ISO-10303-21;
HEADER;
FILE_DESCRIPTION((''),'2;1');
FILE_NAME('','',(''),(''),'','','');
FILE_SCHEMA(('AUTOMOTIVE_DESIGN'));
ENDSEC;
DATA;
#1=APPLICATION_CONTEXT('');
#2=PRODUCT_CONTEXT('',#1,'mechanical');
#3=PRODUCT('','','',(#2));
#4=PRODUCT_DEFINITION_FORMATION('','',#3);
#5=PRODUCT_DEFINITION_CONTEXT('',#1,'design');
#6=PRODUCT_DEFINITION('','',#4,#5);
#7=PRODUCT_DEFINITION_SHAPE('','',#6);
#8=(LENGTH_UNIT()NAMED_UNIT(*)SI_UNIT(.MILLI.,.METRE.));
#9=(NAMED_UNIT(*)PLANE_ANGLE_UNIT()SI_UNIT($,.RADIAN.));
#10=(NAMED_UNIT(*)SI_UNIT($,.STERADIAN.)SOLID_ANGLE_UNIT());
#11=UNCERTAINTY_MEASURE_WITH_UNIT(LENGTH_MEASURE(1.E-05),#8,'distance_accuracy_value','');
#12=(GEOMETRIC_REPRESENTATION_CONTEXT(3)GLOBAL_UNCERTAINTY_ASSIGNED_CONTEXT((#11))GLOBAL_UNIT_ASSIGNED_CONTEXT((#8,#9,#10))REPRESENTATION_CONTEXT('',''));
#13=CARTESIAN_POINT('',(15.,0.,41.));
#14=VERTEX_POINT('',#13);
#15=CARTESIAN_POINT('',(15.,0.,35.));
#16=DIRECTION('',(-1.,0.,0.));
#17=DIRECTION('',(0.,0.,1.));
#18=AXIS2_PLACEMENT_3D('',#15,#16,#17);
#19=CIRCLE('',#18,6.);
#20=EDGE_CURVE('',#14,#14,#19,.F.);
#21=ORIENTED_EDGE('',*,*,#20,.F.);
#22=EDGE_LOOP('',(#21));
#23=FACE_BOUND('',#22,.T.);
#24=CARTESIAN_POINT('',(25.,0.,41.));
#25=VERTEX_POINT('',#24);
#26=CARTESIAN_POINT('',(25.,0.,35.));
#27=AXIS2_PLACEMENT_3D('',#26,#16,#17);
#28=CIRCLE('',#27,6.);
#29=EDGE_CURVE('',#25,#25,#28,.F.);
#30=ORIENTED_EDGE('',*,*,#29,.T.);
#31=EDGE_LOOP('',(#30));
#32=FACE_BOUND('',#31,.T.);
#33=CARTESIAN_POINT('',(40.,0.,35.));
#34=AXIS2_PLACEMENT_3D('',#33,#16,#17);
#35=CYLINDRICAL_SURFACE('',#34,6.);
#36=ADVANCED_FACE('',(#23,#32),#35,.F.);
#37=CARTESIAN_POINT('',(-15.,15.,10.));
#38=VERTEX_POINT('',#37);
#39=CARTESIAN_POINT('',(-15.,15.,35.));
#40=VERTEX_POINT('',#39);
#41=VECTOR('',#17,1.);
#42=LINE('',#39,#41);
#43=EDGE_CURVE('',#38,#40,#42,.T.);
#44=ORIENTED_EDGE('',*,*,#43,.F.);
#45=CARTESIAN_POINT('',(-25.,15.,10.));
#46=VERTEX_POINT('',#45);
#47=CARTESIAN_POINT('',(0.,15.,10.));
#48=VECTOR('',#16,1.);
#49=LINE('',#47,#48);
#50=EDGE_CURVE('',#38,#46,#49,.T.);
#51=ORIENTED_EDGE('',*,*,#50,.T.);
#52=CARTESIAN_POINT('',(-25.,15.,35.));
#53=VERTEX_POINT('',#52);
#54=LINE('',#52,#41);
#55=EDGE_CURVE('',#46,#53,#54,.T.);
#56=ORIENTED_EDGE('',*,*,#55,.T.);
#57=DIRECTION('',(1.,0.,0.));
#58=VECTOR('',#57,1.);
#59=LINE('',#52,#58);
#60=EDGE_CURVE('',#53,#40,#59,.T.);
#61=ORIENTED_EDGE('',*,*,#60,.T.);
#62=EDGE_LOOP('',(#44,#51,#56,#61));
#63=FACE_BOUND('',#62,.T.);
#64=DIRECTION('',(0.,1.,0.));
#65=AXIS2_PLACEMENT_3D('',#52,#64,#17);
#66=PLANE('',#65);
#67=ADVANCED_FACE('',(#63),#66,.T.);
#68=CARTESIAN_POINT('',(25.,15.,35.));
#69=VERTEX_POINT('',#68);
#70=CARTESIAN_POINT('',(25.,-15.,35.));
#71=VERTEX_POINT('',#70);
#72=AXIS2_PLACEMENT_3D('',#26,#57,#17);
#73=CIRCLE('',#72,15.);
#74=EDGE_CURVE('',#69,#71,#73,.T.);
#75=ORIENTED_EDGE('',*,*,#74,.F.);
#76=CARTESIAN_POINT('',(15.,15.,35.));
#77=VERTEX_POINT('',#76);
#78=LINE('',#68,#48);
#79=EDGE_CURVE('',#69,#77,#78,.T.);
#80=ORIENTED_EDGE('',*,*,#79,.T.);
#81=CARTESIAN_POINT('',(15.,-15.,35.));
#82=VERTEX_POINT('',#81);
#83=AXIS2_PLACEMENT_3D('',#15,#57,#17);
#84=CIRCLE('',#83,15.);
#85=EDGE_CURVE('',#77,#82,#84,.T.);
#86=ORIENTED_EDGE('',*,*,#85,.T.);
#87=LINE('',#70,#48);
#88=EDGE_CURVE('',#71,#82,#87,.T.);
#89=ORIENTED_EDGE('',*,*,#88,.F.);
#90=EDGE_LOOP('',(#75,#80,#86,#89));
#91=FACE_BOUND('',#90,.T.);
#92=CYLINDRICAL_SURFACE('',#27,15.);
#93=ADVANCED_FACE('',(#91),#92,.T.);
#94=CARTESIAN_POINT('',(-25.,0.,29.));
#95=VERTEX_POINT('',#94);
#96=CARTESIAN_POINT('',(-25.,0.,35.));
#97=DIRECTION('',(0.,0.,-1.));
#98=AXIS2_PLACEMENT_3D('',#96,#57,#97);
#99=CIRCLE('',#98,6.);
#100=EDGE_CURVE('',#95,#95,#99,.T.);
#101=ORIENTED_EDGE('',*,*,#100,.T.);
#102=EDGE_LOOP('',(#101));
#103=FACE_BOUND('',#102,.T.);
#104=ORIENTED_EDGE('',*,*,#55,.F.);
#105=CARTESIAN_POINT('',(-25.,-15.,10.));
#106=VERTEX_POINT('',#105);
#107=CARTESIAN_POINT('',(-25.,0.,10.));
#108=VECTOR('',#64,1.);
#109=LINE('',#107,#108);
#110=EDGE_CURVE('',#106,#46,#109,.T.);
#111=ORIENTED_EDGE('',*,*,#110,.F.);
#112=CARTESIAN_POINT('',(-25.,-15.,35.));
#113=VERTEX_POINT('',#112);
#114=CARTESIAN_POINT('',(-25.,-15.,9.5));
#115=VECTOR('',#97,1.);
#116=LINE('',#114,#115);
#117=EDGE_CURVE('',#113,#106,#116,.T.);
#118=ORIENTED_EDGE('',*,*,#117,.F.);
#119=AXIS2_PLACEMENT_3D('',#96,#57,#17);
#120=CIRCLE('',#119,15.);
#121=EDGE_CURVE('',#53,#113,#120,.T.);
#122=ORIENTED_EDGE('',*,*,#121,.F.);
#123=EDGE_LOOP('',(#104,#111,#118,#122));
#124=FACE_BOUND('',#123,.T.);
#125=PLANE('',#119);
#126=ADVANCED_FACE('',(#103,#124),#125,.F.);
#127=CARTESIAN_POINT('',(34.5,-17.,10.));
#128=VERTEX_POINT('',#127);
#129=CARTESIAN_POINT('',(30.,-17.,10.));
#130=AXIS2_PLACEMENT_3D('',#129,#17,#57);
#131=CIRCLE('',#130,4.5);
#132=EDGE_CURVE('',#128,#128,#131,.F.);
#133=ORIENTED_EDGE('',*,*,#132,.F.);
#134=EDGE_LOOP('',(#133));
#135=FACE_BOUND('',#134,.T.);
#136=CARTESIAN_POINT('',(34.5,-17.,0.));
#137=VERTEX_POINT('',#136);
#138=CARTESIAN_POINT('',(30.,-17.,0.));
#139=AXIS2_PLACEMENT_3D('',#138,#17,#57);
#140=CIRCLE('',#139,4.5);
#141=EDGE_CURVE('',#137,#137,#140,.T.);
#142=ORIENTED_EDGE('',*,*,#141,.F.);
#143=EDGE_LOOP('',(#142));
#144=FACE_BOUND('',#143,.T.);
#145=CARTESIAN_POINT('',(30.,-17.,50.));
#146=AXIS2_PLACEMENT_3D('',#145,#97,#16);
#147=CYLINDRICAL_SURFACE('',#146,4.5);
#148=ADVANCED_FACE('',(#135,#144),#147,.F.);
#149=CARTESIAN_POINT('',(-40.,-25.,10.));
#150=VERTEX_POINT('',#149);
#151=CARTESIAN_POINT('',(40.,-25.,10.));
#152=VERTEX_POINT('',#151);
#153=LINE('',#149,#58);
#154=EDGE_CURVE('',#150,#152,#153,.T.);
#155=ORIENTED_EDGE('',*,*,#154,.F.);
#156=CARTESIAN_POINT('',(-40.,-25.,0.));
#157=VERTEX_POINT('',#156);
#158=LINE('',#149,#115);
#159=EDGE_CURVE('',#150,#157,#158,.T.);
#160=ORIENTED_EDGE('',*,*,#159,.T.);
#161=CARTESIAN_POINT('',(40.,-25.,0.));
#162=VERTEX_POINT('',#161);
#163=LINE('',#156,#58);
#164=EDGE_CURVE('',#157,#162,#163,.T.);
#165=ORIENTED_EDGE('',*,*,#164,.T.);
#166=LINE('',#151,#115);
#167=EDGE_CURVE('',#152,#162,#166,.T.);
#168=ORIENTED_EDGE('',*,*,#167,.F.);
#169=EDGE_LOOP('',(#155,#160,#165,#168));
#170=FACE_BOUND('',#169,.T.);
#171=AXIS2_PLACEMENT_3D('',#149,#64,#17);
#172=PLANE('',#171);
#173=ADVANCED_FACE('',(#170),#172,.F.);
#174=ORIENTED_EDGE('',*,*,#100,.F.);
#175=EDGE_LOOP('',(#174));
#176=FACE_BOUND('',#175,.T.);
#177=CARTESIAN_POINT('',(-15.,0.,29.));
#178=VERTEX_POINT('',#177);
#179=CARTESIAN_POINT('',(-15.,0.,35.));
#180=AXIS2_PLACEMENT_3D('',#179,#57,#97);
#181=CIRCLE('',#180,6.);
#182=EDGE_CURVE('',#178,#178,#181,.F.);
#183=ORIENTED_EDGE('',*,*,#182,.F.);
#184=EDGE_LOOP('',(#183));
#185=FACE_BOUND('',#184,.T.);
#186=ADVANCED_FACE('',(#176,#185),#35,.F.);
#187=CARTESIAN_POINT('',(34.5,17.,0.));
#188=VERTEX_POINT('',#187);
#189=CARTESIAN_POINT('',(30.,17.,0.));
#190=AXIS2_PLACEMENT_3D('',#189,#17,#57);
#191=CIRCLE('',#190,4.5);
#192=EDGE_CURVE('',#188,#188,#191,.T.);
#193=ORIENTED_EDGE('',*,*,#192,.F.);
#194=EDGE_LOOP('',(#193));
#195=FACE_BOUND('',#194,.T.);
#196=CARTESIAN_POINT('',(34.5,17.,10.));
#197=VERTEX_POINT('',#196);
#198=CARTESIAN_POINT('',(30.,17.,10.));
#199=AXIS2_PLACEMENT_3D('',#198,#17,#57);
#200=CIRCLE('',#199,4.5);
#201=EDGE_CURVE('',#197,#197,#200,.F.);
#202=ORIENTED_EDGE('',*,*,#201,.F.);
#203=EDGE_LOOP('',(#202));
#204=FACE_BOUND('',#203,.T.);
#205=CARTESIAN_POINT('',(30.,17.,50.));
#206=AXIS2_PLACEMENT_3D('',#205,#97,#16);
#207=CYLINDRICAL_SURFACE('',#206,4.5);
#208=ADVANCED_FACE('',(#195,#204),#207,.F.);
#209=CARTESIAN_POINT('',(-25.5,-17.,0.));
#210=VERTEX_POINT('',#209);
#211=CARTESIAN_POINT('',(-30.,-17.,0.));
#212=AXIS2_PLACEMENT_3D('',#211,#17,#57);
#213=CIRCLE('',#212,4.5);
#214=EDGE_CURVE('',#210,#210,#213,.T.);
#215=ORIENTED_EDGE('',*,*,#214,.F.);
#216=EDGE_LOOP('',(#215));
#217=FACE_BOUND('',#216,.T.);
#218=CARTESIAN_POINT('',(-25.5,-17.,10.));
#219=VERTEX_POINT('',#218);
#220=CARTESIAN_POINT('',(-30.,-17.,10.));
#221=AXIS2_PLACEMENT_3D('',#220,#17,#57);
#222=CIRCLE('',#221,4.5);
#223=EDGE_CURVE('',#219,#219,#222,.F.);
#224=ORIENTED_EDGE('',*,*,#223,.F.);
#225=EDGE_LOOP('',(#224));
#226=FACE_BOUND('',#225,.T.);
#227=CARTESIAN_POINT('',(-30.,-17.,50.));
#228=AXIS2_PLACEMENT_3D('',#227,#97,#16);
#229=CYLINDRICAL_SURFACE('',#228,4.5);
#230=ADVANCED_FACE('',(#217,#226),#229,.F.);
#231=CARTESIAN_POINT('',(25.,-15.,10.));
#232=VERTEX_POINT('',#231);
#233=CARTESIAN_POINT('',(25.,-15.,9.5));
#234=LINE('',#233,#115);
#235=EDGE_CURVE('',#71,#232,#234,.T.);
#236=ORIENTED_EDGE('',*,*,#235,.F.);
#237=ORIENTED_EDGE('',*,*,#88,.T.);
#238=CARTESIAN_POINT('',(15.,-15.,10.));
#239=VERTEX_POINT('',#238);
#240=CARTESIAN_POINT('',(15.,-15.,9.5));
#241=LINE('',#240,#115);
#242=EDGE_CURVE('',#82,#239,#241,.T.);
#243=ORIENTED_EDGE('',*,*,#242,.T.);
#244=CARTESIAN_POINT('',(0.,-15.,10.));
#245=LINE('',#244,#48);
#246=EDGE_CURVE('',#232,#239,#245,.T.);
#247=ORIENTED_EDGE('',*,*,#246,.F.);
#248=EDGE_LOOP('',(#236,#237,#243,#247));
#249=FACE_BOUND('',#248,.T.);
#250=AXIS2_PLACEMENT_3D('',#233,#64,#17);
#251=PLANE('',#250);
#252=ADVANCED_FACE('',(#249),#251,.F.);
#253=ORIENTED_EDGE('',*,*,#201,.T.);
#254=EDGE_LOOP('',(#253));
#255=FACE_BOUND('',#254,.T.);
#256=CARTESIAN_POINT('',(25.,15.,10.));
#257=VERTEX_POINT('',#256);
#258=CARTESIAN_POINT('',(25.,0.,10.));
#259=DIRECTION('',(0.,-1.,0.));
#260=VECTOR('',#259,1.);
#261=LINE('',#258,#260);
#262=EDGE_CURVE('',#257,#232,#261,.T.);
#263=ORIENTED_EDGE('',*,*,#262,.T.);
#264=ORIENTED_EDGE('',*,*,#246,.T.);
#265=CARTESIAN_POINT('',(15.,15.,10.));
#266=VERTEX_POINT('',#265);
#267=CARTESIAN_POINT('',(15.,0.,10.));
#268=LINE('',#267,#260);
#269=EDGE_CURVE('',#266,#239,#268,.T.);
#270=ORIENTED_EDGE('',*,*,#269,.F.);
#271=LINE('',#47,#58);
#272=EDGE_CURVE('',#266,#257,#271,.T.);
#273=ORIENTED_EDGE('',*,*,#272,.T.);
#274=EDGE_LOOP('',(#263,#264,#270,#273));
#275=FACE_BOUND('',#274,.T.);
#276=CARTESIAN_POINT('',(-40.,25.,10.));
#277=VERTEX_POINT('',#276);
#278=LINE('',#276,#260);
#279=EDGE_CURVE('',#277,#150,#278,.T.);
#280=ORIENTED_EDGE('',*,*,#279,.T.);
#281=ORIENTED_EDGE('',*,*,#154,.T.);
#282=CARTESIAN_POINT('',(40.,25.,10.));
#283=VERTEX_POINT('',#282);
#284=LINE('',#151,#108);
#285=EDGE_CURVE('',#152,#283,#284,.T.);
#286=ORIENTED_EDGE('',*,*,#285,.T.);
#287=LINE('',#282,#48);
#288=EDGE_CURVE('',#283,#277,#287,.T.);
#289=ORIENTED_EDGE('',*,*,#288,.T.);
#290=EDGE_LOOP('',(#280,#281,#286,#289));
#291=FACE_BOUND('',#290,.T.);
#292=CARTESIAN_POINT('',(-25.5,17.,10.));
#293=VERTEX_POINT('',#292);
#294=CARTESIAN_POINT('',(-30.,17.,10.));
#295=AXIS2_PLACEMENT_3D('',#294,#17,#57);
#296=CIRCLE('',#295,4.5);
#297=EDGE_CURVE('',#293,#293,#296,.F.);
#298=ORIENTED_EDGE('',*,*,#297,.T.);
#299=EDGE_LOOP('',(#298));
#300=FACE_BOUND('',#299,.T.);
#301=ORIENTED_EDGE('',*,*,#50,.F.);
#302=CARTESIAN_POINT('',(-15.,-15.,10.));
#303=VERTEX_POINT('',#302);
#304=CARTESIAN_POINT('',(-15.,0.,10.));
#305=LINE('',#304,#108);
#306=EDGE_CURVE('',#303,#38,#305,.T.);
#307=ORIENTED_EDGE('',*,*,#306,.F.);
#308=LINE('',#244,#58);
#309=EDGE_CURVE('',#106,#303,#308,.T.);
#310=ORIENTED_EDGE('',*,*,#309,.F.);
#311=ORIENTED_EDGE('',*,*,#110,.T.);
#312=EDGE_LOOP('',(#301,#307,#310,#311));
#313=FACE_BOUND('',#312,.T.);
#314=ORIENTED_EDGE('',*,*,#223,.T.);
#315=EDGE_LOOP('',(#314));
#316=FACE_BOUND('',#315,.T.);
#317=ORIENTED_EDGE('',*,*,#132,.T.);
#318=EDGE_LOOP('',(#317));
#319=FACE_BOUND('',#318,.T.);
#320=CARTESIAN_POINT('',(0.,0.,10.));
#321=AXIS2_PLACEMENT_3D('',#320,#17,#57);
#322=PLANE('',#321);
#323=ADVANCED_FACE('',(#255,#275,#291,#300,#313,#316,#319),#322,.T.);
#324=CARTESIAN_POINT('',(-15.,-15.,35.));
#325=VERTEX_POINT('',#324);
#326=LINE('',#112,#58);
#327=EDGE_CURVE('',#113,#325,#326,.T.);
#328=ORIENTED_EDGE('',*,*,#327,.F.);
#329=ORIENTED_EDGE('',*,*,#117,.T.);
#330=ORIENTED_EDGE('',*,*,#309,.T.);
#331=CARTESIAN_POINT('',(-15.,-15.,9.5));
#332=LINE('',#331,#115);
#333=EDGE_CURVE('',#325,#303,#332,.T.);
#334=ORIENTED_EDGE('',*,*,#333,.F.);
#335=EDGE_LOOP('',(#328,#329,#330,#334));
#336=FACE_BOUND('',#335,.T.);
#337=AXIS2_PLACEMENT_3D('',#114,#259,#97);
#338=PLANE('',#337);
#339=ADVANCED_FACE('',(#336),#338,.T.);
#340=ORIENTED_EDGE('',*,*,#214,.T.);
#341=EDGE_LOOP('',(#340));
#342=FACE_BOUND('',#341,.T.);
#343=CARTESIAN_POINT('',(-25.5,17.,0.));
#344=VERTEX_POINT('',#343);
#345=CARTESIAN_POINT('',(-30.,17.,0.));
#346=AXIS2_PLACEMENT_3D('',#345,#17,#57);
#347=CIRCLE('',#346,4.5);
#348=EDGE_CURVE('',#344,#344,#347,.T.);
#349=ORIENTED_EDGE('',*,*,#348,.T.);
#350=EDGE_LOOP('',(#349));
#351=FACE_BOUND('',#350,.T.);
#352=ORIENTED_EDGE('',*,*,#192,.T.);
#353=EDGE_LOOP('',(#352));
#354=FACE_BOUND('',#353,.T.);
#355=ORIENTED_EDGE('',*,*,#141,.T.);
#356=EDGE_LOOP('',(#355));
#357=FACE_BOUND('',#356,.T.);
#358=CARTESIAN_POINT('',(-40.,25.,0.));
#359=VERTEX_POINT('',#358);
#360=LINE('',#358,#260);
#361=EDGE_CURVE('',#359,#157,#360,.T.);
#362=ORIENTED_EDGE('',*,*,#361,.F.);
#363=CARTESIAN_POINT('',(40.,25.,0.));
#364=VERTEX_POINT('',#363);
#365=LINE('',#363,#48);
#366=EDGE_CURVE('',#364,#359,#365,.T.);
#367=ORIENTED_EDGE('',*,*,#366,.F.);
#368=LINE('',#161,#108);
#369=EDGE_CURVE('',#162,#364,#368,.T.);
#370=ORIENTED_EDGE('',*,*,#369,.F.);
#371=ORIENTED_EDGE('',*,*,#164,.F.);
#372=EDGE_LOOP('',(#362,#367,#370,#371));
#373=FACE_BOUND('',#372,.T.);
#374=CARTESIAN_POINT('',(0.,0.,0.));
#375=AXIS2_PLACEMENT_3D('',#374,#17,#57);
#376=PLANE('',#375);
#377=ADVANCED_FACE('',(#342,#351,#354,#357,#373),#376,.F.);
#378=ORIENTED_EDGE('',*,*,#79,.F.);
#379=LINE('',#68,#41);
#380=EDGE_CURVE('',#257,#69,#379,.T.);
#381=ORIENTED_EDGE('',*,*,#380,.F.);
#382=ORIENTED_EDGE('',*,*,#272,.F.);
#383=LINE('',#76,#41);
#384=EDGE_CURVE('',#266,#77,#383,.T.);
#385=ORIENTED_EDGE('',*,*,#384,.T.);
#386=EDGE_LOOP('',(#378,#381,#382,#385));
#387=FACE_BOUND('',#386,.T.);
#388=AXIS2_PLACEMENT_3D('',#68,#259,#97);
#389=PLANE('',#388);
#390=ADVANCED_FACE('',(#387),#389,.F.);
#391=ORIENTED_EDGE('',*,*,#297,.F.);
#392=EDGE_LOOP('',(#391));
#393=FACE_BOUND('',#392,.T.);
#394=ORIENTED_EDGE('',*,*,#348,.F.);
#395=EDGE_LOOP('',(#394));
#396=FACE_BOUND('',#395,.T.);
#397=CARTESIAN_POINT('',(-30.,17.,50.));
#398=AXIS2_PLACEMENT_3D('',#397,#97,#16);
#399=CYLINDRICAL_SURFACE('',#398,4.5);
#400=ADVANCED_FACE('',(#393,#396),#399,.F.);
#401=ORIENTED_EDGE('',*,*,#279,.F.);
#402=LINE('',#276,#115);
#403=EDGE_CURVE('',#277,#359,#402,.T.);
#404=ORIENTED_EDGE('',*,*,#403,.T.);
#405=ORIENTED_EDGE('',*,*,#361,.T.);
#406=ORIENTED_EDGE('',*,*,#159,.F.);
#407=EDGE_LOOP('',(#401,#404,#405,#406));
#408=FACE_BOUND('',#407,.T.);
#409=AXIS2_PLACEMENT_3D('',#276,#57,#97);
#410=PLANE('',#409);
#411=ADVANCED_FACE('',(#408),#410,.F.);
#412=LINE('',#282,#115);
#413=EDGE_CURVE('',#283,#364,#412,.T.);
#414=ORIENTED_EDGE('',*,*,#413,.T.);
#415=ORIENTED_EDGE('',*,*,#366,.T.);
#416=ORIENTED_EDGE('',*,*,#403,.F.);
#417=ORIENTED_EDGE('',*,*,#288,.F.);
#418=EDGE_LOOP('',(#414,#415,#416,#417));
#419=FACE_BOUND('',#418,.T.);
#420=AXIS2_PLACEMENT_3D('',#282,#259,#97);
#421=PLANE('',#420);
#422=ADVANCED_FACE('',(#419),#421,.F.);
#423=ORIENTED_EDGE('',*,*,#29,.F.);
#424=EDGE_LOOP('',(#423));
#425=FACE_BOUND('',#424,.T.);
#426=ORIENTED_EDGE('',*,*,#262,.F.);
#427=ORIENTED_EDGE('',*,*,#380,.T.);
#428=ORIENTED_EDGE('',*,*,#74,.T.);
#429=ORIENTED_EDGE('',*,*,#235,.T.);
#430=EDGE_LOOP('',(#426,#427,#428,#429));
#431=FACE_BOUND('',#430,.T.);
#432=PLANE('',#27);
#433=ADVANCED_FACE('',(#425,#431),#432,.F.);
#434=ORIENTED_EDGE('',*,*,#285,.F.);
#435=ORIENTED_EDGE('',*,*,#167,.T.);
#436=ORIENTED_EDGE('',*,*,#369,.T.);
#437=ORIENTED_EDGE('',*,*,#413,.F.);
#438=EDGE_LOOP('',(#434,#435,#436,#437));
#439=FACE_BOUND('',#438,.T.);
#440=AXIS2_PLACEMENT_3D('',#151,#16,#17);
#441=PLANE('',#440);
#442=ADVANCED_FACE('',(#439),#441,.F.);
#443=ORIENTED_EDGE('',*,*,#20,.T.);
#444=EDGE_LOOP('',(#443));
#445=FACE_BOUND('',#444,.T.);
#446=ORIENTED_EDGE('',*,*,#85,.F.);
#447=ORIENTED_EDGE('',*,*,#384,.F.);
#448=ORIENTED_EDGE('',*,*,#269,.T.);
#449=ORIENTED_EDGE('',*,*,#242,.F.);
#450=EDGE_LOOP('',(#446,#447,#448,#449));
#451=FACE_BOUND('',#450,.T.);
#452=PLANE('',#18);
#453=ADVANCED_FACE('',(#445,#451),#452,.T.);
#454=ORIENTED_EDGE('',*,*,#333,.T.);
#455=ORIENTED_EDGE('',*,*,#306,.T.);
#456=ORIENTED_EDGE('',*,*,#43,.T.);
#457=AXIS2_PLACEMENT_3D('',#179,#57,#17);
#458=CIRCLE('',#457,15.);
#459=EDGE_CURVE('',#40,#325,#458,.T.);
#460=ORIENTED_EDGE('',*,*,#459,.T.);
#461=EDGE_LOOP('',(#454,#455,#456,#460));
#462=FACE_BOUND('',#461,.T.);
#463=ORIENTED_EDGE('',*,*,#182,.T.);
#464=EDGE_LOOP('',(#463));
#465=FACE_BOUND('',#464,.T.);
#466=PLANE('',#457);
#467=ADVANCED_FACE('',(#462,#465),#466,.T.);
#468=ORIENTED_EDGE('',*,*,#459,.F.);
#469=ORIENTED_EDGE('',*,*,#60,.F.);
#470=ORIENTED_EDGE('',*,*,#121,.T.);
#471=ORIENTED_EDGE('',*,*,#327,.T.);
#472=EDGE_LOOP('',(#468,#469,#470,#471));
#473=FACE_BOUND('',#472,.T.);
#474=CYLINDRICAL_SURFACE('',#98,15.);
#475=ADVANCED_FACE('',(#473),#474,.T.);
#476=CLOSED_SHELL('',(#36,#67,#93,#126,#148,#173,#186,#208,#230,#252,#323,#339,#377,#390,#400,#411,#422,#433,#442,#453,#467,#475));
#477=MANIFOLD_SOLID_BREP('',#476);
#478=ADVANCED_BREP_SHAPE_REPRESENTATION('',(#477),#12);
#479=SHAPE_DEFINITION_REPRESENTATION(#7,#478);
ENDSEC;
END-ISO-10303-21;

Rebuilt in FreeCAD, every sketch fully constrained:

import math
import FreeCAD as App
import Part
import Sketcher

V = App.Vector

doc = App.newDocument("Part")
params = doc.addObject("Spreadsheet::Sheet", "Params")
for row, (alias, value) in enumerate([
    ("sketch1_width", "80 mm"),
    ("sketch1_height", "50 mm"),
    ("pad1_length", "10 mm"),
    ("sketch2_radius", "15 mm"),
    ("sketch2_height", "25.5 mm"),
    ("pad2_length", "10 mm"),
    ("sketch3_diameter", "12 mm"),
    ("sketch4_diameter", "9 mm"),
], start=1):
    params.set(f"A{row}", alias)
    params.set(f"B{row}", "=" + value)
    params.setAlias(f"B{row}", alias)

body = doc.addObject("PartDesign::Body", "Body")

# Sketch on XY plane
sketch1 = body.newObject("Sketcher::SketchObject", "Sketch")
sketch1.AttachmentSupport = (doc.getObject("XY_Plane"), [""])
sketch1.MapMode = "FlatFace"
sketch1.addGeometry([
    Part.LineSegment(V(-40, 25, 0), V(-40, -25, 0)),
    Part.LineSegment(V(-40, -25, 0), V(40, -25, 0)),
    Part.LineSegment(V(40, -25, 0), V(40, 25, 0)),
    Part.LineSegment(V(40, 25, 0), V(-40, 25, 0)),
], False)
sketch1.addConstraint([
    Sketcher.Constraint("Coincident", 0, 2, 1, 1),
    Sketcher.Constraint("Coincident", 1, 2, 2, 1),
    Sketcher.Constraint("Coincident", 2, 2, 3, 1),
    Sketcher.Constraint("Coincident", 3, 2, 0, 1),
    Sketcher.Constraint("Vertical", 0),
    Sketcher.Constraint("Horizontal", 1),
    Sketcher.Constraint("Vertical", 2),
    Sketcher.Constraint("Horizontal", 3),
    Sketcher.Constraint("Symmetric", 0, 2, 2, 2, -1, 1),
    Sketcher.Constraint("DistanceX", 1, 1, 1, 2, 80.0),
    Sketcher.Constraint("DistanceY", 0, 2, 0, 1, 50.0),
])
sketch1.setExpression("Constraints[9]", "Params.sketch1_width")
sketch1.setExpression("Constraints[10]", "Params.sketch1_height")
pad1 = body.newObject("PartDesign::Pad", "Pad")
pad1.Profile = sketch1
pad1.setExpression("Length", "Params.pad1_length")

# Sketch on YZ plane
sketch2 = body.newObject("Sketcher::SketchObject", "Sketch001")
sketch2.AttachmentSupport = (doc.getObject("YZ_Plane"), [""])
sketch2.MapMode = "FlatFace"
sketch2.AttachmentOffset = App.Placement(V(0, 0, 15), App.Rotation())
sketch2.addGeometry([
    Part.LineSegment(V(-15, 35, 0), V(-15, 9.5, 0)),
    Part.LineSegment(V(-15, 9.5, 0), V(15, 9.5, 0)),
    Part.LineSegment(V(15, 9.5, 0), V(15, 35, 0)),
    Part.ArcOfCircle(Part.Circle(V(0, 35, 0), V(0, 0, 1), 15), math.radians(0), math.radians(180)),
], False)
sketch2.addConstraint([
    Sketcher.Constraint("Coincident", 0, 2, 1, 1),
    Sketcher.Constraint("Coincident", 1, 2, 2, 1),
    Sketcher.Constraint("Tangent", 2, 2, 3, 1),
    Sketcher.Constraint("Tangent", 3, 2, 0, 1),
    Sketcher.Constraint("Vertical", 0),
    Sketcher.Constraint("Horizontal", 1),
    Sketcher.Constraint("Vertical", 2),
    Sketcher.Constraint("PointOnObject", 3, 3, -2),
    Sketcher.Constraint("Radius", 3, 15.0),
    Sketcher.Constraint("DistanceY", 0, 2, 0, 1, 25.5),
    Sketcher.Constraint("DistanceY", -1, 1, 3, 3, 35.0),
])
sketch2.setExpression("Constraints[8]", "Params.sketch2_radius")
sketch2.setExpression("Constraints[9]", "Params.sketch2_height")
pad2 = body.newObject("PartDesign::Pad", "Pad001")
pad2.Profile = sketch2
pad2.setExpression("Length", "Params.pad2_length")
doc.recompute()

mirrored = body.newObject("PartDesign::Mirrored", "Mirrored")
mirrored.Originals = [pad2]
mirrored.MirrorPlane = (doc.getObject("YZ_Plane"), [""])
body.Tip = mirrored

# Sketch on YZ plane
sketch3 = body.newObject("Sketcher::SketchObject", "Sketch002")
sketch3.AttachmentSupport = (doc.getObject("YZ_Plane"), [""])
sketch3.MapMode = "FlatFace"
sketch3.AttachmentOffset = App.Placement(V(0, 0, -25), App.Rotation())
sketch3.addGeometry(Part.Circle(V(0, 35, 0), V(0, 0, 1), 6), False)
sketch3.addConstraint([
    Sketcher.Constraint("PointOnObject", 0, 3, -2),
    Sketcher.Constraint("Diameter", 0, 12.0),
    Sketcher.Constraint("DistanceY", -1, 1, 0, 3, 35.0),
])
sketch3.setExpression("Constraints[1]", "Params.sketch3_diameter")
pocket1 = body.newObject("PartDesign::Pocket", "Pocket")
pocket1.Profile = sketch3
pocket1.Type = "ThroughAll"
pocket1.Reversed = True

# Sketch on XY plane
sketch4 = body.newObject("Sketcher::SketchObject", "Sketch003")
sketch4.AttachmentSupport = (doc.getObject("XY_Plane"), [""])
sketch4.MapMode = "FlatFace"
sketch4.addGeometry([
    Part.Circle(V(30, 17, 0), V(0, 0, 1), 4.5),
    Part.Circle(V(30, -17, 0), V(0, 0, 1), 4.5),
    Part.Circle(V(-30, 17, 0), V(0, 0, 1), 4.5),
    Part.Circle(V(-30, -17, 0), V(0, 0, 1), 4.5),
], False)
sketch4.addConstraint([
    Sketcher.Constraint("Equal", 0, 1),
    Sketcher.Constraint("Equal", 1, 2),
    Sketcher.Constraint("Equal", 2, 3),
    Sketcher.Constraint("Symmetric", 1, 3, 2, 3, -1, 1),
    Sketcher.Constraint("Symmetric", 0, 3, 3, 3, -1, 1),
    Sketcher.Constraint("Symmetric", 0, 3, 2, 3, -2),
    Sketcher.Constraint("Diameter", 0, 9.0),
    Sketcher.Constraint("DistanceX", -1, 1, 0, 3, 30.0),
    Sketcher.Constraint("DistanceY", -1, 1, 0, 3, 17.0),
])
sketch4.setExpression("Constraints[6]", "Params.sketch4_diameter")
pocket2 = body.newObject("PartDesign::Pocket", "Pocket001")
pocket2.Profile = sketch4
pocket2.Type = "ThroughAll"
pocket2.Reversed = True

doc.recompute()
